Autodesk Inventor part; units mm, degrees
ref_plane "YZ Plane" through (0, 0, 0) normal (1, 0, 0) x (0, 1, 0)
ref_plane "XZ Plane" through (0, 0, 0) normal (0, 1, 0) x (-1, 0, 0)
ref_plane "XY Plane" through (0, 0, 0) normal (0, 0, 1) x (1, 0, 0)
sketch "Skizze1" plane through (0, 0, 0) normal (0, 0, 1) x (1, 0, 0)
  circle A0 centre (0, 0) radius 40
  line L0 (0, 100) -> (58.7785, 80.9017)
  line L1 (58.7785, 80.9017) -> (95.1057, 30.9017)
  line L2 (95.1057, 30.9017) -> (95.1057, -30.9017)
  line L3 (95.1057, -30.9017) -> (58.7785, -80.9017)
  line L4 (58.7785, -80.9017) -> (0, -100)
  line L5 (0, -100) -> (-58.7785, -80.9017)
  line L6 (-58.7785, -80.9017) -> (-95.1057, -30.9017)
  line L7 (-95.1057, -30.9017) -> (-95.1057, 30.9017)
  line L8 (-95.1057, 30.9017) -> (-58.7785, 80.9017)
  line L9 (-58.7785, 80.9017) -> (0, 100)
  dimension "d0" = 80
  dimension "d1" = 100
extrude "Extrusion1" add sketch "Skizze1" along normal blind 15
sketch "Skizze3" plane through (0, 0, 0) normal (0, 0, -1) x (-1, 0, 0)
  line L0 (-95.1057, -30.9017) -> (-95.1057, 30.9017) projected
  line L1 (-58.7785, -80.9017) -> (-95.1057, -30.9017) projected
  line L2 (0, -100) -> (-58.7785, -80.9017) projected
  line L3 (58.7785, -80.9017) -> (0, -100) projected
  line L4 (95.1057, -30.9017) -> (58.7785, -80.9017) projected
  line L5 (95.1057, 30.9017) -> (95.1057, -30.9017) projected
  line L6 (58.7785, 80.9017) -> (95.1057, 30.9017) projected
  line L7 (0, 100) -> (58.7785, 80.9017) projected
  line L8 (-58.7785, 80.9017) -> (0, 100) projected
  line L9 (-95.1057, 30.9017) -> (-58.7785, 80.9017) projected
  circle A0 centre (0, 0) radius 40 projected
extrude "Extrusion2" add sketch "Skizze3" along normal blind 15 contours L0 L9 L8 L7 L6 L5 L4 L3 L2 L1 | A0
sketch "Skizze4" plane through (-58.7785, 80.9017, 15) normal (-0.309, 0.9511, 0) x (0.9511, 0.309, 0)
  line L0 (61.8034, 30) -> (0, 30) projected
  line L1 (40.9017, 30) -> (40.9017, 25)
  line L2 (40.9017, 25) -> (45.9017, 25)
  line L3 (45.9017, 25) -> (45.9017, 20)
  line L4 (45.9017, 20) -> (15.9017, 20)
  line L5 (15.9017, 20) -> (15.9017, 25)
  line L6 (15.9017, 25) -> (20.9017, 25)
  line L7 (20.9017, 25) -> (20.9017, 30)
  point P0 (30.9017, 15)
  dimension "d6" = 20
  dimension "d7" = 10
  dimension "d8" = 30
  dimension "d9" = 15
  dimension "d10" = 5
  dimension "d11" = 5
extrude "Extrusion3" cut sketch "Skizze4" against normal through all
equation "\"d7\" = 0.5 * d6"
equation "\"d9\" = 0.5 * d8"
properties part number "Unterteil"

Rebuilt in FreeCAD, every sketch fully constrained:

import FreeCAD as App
import Part
import Sketcher
from FreeCAD import Vector
Q = App.Units.Quantity

doc = App.newDocument("Part")
params = doc.addObject("Spreadsheet::Sheet", "Params")
for row, (alias, value) in enumerate([
    ("sketch1_diameter", "80 mm"),
    ("pad1_length", "15 mm"),
    ("pad2_length", "15 mm"),
    ("sketch3_width", "20 mm"),
    ("sketch3_width2", "5 mm"),
], start=1):
    params.set(f"A{row}", alias)
    params.set(f"B{row}", "=" + value)
    params.setAlias(f"B{row}", alias)

body = doc.addObject("PartDesign::Body", "Body")

# Sketch on XY plane
sketch1 = body.newObject("Sketcher::SketchObject", "Sketch")
sketch1.AttachmentSupport = (doc.getObject("XY_Plane"), [""])
sketch1.MapMode = "FlatFace"
sketch1.addGeometry([
    Part.LineSegment(Vector(58.7785, 80.9017, 0), Vector(0, 100, 0)),  # 0
    Part.LineSegment(Vector(0, 100, 0), Vector(-58.7785, 80.9017, 0)),  # 1
    Part.LineSegment(Vector(-58.7785, 80.9017, 0), Vector(-95.1057, 30.9017, 0)),  # 2
    Part.LineSegment(Vector(-95.1057, 30.9017, 0), Vector(-95.1057, -30.9017, 0)),  # 3
    Part.LineSegment(Vector(-95.1057, -30.9017, 0), Vector(-58.7785, -80.9017, 0)),  # 4
    Part.LineSegment(Vector(-58.7785, -80.9017, 0), Vector(0, -100, 0)),  # 5
    Part.LineSegment(Vector(0, -100, 0), Vector(58.7785, -80.9017, 0)),  # 6
    Part.LineSegment(Vector(58.7785, -80.9017, 0), Vector(95.1057, -30.9017, 0)),  # 7
    Part.LineSegment(Vector(95.1057, -30.9017, 0), Vector(95.1057, 30.9017, 0)),  # 8
    Part.LineSegment(Vector(95.1057, 30.9017, 0), Vector(58.7785, 80.9017, 0)),  # 9
    Part.Circle(Vector(0, 0, 0), Vector(0, 0, 1), 40),  # 10
], False)
sketch1.addConstraint([
    Sketcher.Constraint("Coincident", 0, 2, 1, 1),
    Sketcher.Constraint("Coincident", 1, 2, 2, 1),
    Sketcher.Constraint("Coincident", 2, 2, 3, 1),
    Sketcher.Constraint("Coincident", 3, 2, 4, 1),
    Sketcher.Constraint("Coincident", 4, 2, 5, 1),
    Sketcher.Constraint("Coincident", 5, 2, 6, 1),
    Sketcher.Constraint("Coincident", 6, 2, 7, 1),
    Sketcher.Constraint("Coincident", 7, 2, 8, 1),
    Sketcher.Constraint("Coincident", 8, 2, 9, 1),
    Sketcher.Constraint("Coincident", 9, 2, 0, 1),
    Sketcher.Constraint("Vertical", 3),
    Sketcher.Constraint("Vertical", 8),
    Sketcher.Constraint("Coincident", 10, 3, -1, 1),
    Sketcher.Constraint("Symmetric", 0, 2, 5, 2, -1, 1),
    Sketcher.Constraint("Symmetric", 1, 2, 6, 2, -1, 1),
    Sketcher.Constraint("Symmetric", 2, 2, 7, 2, -1, 1),
    Sketcher.Constraint("Symmetric", 4, 2, 9, 2, -1, 1),
    Sketcher.Constraint("Symmetric", 4, 2, 6, 2, -2),
    Sketcher.Constraint("PointOnObject", 0, 2, -2),
    Sketcher.Constraint("Parallel", 4, 9),
    Sketcher.Constraint("Horizontal", 3, 2, 7, 2),
    Sketcher.Constraint("Equal", 1, 2),
    Sketcher.Constraint("Diameter", 10, 80.0),
    Sketcher.Constraint("DistanceY", -1, 1, 0, 2, 100.0),
    Sketcher.Constraint("Angle", 0, Q("162 deg")),
    Sketcher.Constraint("Angle", 2, Q("-126 deg")),
    Sketcher.Constraint("DistanceY", 2, 2, 1, 2, 50.0),
])
sketch1.setExpression("Constraints[22]", "Params.sketch1_diameter")
pad1 = body.newObject("PartDesign::Pad", "Pad")
pad1.Profile = sketch1
pad1.setExpression("Length", "Params.pad1_length")

# Sketch on XY plane
sketch2 = body.newObject("Sketcher::SketchObject", "Sketch001")
sketch2.AttachmentSupport = (doc.getObject("XY_Plane"), [""])
sketch2.MapMode = "FlatFace"
sketch2.addGeometry([
    Part.LineSegment(Vector(95.1057, 30.9017, 0), Vector(95.1057, -30.9017, 0)),  # 0
    Part.LineSegment(Vector(95.1057, -30.9017, 0), Vector(58.7785, -80.9017, 0)),  # 1
    Part.LineSegment(Vector(58.7785, -80.9017, 0), Vector(0, -100, 0)),  # 2
    Part.LineSegment(Vector(0, -100, 0), Vector(-58.7785, -80.9017, 0)),  # 3
    Part.LineSegment(Vector(-58.7785, -80.9017, 0), Vector(-95.1057, -30.9017, 0)),  # 4
    Part.LineSegment(Vector(-95.1057, -30.9017, 0), Vector(-95.1057, 30.9017, 0)),  # 5
    Part.LineSegment(Vector(-95.1057, 30.9017, 0), Vector(-58.7785, 80.9017, 0)),  # 6
    Part.LineSegment(Vector(-58.7785, 80.9017, 0), Vector(0, 100, 0)),  # 7
    Part.LineSegment(Vector(0, 100, 0), Vector(58.7785, 80.9017, 0)),  # 8
    Part.LineSegment(Vector(58.7785, 80.9017, 0), Vector(95.1057, 30.9017, 0)),  # 9
], False)
sketch2.addConstraint([
    Sketcher.Constraint("Coincident", 0, 2, 1, 1),
    Sketcher.Constraint("Coincident", 1, 2, 2, 1),
    Sketcher.Constraint("Coincident", 2, 2, 3, 1),
    Sketcher.Constraint("Coincident", 3, 2, 4, 1),
    Sketcher.Constraint("Coincident", 4, 2, 5, 1),
    Sketcher.Constraint("Coincident", 5, 2, 6, 1),
    Sketcher.Constraint("Coincident", 6, 2, 7, 1),
    Sketcher.Constraint("Coincident", 7, 2, 8, 1),
    Sketcher.Constraint("Coincident", 8, 2, 9, 1),
    Sketcher.Constraint("Coincident", 9, 2, 0, 1),
    Sketcher.Constraint("Vertical", 0),
    Sketcher.Constraint("Vertical", 5),
    Sketcher.Constraint("Symmetric", 0, 2, 5, 2, -1, 1),
    Sketcher.Constraint("Symmetric", 1, 2, 6, 2, -1, 1),
    Sketcher.Constraint("Symmetric", 2, 2, 7, 2, -1, 1),
    Sketcher.Constraint("Symmetric", 3, 2, 8, 2, -1, 1),
    Sketcher.Constraint("Symmetric", 1, 2, 3, 2, -2),
    Sketcher.Constraint("PointOnObject", 2, 2, -2),
    Sketcher.Constraint("Parallel", 4, 9),
    Sketcher.Constraint("Horizontal", 0, 2, 4, 2),
    Sketcher.Constraint("Equal", 1, 2),
    Sketcher.Constraint("Angle", 1, Q("-126 deg")),
    Sketcher.Constraint("Angle", 2, Q("-162 deg")),
    Sketcher.Constraint("DistanceY", 2, 2, -1, 1, 100.0),
    Sketcher.Constraint("DistanceY", 1, 2, 0, 2, 50.0),
])
pad2 = body.newObject("PartDesign::Pad", "Pad001")
pad2.Profile = sketch2
pad2.setExpression("Length", "Params.pad2_length")
pad2.Reversed = True

# Sketch on an angled plane
sketch3 = body.newObject("Sketcher::SketchObject", "Sketch002")
sketch3.Placement = App.Placement(Vector(-58.7785, 80.9017, 15), App.Rotation(Vector(0.951056516, 0.309016994, 0), Vector(0, 0, -0.999999999), Vector(-0.309016994, 0.951056516, 0), "ZXY"))
sketch3.addGeometry([
    Part.LineSegment(Vector(40.9017, 25, 0), Vector(40.9017, 30, 0)),  # 0
    Part.LineSegment(Vector(40.9017, 30, 0), Vector(20.9017, 30, 0)),  # 1
    Part.LineSegment(Vector(20.9017, 30, 0), Vector(20.9017, 25, 0)),  # 2
    Part.LineSegment(Vector(20.9017, 25, 0), Vector(15.9017, 25, 0)),  # 3
    Part.LineSegment(Vector(15.9017, 25, 0), Vector(15.9017, 20, 0)),  # 4
    Part.LineSegment(Vector(15.9017, 20, 0), Vector(45.9017, 20, 0)),  # 5
    Part.LineSegment(Vector(45.9017, 20, 0), Vector(45.9017, 25, 0)),  # 6
    Part.LineSegment(Vector(45.9017, 25, 0), Vector(40.9017, 25, 0)),  # 7
], False)
sketch3.addConstraint([
    Sketcher.Constraint("Coincident", 0, 2, 1, 1),
    Sketcher.Constraint("Coincident", 1, 2, 2, 1),
    Sketcher.Constraint("Coincident", 2, 2, 3, 1),
    Sketcher.Constraint("Coincident", 3, 2, 4, 1),
    Sketcher.Constraint("Coincident", 4, 2, 5, 1),
    Sketcher.Constraint("Coincident", 5, 2, 6, 1),
    Sketcher.Constraint("Coincident", 6, 2, 7, 1),
    Sketcher.Constraint("Coincident", 7, 2, 0, 1),
    Sketcher.Constraint("Vertical", 0),
    Sketcher.Constraint("Horizontal", 1),
    Sketcher.Constraint("Vertical", 2),
    Sketcher.Constraint("Horizontal", 3),
    Sketcher.Constraint("Vertical", 4),
    Sketcher.Constraint("Horizontal", 5),
    Sketcher.Constraint("Vertical", 6),
    Sketcher.Constraint("Horizontal", 7),
    Sketcher.Constraint("Horizontal", 3, 2, 6, 2),
    Sketcher.Constraint("Equal", 3, 7),
    Sketcher.Constraint("Equal", 7, 0),
    Sketcher.Constraint("Equal", 2, 4),
    Sketcher.Constraint("DistanceX", 1, 2, 1, 1, 20.0),
    Sketcher.Constraint("DistanceX", 3, 2, 3, 1, 5.0),
    Sketcher.Constraint("DistanceY", -1, 1, 0, 2, 30.0),
    Sketcher.Constraint("DistanceX", -1, 1, 0, 2, 40.9017),
])
sketch3.setExpression("Constraints[20]", "Params.sketch3_width")
sketch3.setExpression("Constraints[21]", "Params.sketch3_width2")
pocket1 = body.newObject("PartDesign::Pocket", "Pocket")
pocket1.Profile = sketch3
pocket1.Type = "ThroughAll"

doc.recompute()
